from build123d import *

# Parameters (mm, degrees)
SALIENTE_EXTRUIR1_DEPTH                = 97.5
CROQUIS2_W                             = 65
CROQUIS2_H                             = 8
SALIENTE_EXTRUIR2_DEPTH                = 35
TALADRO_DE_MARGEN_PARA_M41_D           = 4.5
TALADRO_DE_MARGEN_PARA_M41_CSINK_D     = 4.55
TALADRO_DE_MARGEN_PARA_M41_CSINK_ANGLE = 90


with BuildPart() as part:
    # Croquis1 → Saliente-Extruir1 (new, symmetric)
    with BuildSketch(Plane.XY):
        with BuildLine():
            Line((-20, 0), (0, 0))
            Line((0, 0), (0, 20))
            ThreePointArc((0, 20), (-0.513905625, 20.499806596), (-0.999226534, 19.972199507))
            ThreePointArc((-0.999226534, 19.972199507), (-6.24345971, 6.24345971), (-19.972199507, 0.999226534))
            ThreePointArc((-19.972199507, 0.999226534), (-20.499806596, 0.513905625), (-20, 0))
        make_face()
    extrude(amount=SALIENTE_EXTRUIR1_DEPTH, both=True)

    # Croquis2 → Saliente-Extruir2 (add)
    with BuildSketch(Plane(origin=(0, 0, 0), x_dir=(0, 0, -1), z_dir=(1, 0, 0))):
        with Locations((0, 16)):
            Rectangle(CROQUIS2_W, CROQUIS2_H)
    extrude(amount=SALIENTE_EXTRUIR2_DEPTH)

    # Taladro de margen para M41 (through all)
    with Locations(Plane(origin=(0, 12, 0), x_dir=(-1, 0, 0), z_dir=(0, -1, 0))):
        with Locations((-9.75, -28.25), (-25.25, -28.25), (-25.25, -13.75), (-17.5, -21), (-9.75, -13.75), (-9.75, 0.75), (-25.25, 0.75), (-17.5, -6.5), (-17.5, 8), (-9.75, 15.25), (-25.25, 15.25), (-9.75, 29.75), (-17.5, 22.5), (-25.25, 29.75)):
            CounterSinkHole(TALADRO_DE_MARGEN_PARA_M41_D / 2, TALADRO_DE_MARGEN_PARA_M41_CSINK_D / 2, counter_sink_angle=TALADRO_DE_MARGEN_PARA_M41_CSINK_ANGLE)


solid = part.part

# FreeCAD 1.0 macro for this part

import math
import FreeCAD as App
import Part
import Sketcher
from FreeCAD import Vector


def add_polygon(sketch, points):
    """Adds a closed chain of lines whose ends are joined by coincident constraints."""
    first, n = sketch.GeometryCount, len(points)
    for a, b in zip(points, points[1:] + points[:1]):
        sketch.addGeometry(Part.LineSegment(App.Vector(*a, 0), App.Vector(*b, 0)), False)
    for i in range(n):
        sketch.addConstraint(Sketcher.Constraint("Coincident", first + i, 2, first + (i + 1) % n, 1))

doc = App.newDocument("Part")
body = doc.addObject("PartDesign::Body", "Body")

# Sketch on XY plane
sketch1 = body.newObject("Sketcher::SketchObject", "Sketch")
sketch1.AttachmentSupport = (doc.getObject("XY_Plane"), [""])
sketch1.MapMode = "FlatFace"
sketch1.addGeometry([
    Part.LineSegment(Vector(-20, 0, 0), Vector(0, 0, 0)),  # 0
    Part.LineSegment(Vector(0, 0, 0), Vector(0, 20, 0)),  # 1
    Part.ArcOfCircle(Part.Circle(Vector(-0.5, 20, 0), Vector(0, 0, 1), 0.5), math.radians(0), math.radians(183)),  # 2
    Part.ArcOfCircle(Part.Circle(Vector(-19, 19, 0), Vector(0, 0, 1), 18), math.radians(-93), math.radians(3)),  # 3
    Part.ArcOfCircle(Part.Circle(Vector(-20, 0.5, 0), Vector(0, 0, 1), 0.5), math.radians(87), math.radians(270)),  # 4
], False)
sketch1.addConstraint([
    Sketcher.Constraint("Coincident", 0, 2, 1, 1),
    Sketcher.Constraint("Tangent", 1, 2, 2, 1),
    Sketcher.Constraint("Tangent", 2, 2, 3, 2),
    Sketcher.Constraint("Tangent", 3, 1, 4, 1),
    Sketcher.Constraint("Tangent", 4, 2, 0, 1),
    Sketcher.Constraint("Horizontal", 0),
    Sketcher.Constraint("Vertical", 1),
    Sketcher.Constraint("Coincident", 0, 2, -1, 1),
    Sketcher.Constraint("Equal", 2, 4),
    Sketcher.Constraint("Equal", 0, 1),
    Sketcher.Constraint("Radius", 3, 18.0),
    Sketcher.Constraint("Radius", 2, 0.5),
    Sketcher.Constraint("DistanceX", 0, 1, 0, 2, 20.0),
])
pad1 = body.newObject("PartDesign::Pad", "Pad")
pad1.Profile = sketch1
pad1.Length = 195
pad1.Midplane = True

# Sketch on YZ plane
sketch2 = body.newObject("Sketcher::SketchObject", "Sketch001")
sketch2.AttachmentSupport = (doc.getObject("YZ_Plane"), [""])
sketch2.MapMode = "FlatFace"
add_polygon(sketch2, [(20, 32), (12, 32), (12, -32), (20, -32)])  # lines 0-3
sketch2.addConstraint([
    Sketcher.Constraint("Horizontal", 0),
    Sketcher.Constraint("Vertical", 1),
    Sketcher.Constraint("Horizontal", 2),
    Sketcher.Constraint("Vertical", 3),
    Sketcher.Constraint("DistanceX", 0, 2, 0, 1, 8.0),
    Sketcher.Constraint("DistanceY", 1, 2, 1, 1, 65.0),
    Sketcher.Constraint("DistanceX", -1, 1, 0, 2, 12.0),
    Sketcher.Constraint("DistanceY", -1, 1, 0, 2, 32.5),
])
pad2 = body.newObject("PartDesign::Pad", "Pad001")
pad2.Profile = sketch2
pad2.Length = 35

# Sketch on XZ plane
sketch3 = body.newObject("Sketcher::SketchObject", "Sketch002")
sketch3.AttachmentSupport = (doc.getObject("XZ_Plane"), [""])
sketch3.MapMode = "FlatFace"
sketch3.AttachmentOffset = App.Placement(Vector(0, 0, -12), App.Rotation())
sketch3.addGeometry([
    Part.Circle(Vector(9.8, 28.2, 0), Vector(0, 0, 1), 2.2),  # 0
    Part.Circle(Vector(25.2, 28.2, 0), Vector(0, 0, 1), 2.2),  # 1
    Part.Circle(Vector(25.2, 13.8, 0), Vector(0, 0, 1), 2.2),  # 2
    Part.Circle(Vector(17.5, 21, 0), Vector(0, 0, 1), 2.2),  # 3
    Part.Circle(Vector(9.8, 13.8, 0), Vector(0, 0, 1), 2.2),  # 4
    Part.Circle(Vector(9.8, -0.8, 0), Vector(0, 0, 1), 2.2),  # 5
    Part.Circle(Vector(25.2, -0.8, 0), Vector(0, 0, 1), 2.2),  # 6
    Part.Circle(Vector(17.5, 6.5, 0), Vector(0, 0, 1), 2.2),  # 7
    Part.Circle(Vector(17.5, -8, 0), Vector(0, 0, 1), 2.2),  # 8
    Part.Circle(Vector(9.8, -15.2, 0), Vector(0, 0, 1), 2.2),  # 9
    Part.Circle(Vector(25.2, -15.2, 0), Vector(0, 0, 1), 2.2),  # 10
    Part.Circle(Vector(9.8, -29.8, 0), Vector(0, 0, 1), 2.2),  # 11
    Part.Circle(Vector(17.5, -22.5, 0), Vector(0, 0, 1), 2.2),  # 12
    Part.Circle(Vector(25.2, -29.8, 0), Vector(0, 0, 1), 2.2),  # 13
], False)
sketch3.addConstraint([
    Sketcher.Constraint("Equal", 0, 1),
    Sketcher.Constraint("Equal", 1, 2),
    Sketcher.Constraint("Equal", 2, 3),
    Sketcher.Constraint("Equal", 3, 4),
    Sketcher.Constraint("Equal", 4, 5),
    Sketcher.Constraint("Equal", 5, 6),
    Sketcher.Constraint("Equal", 6, 7),
    Sketcher.Constraint("Equal", 7, 8),
    Sketcher.Constraint("Equal", 8, 9),
    Sketcher.Constraint("Equal", 9, 10),
    Sketcher.Constraint("Equal", 10, 11),
    Sketcher.Constraint("Equal", 11, 12),
    Sketcher.Constraint("Equal", 12, 13),
    Sketcher.Constraint("Horizontal", 0, 3, 1, 3),
    Sketcher.Constraint("Horizontal", 2, 3, 4, 3),
    Sketcher.Constraint("Horizontal", 5, 3, 6, 3),
    Sketcher.Constraint("Horizontal", 9, 3, 10, 3),
    Sketcher.Constraint("Horizontal", 11, 3, 13, 3),
    Sketcher.Constraint("Vertical", 1, 3, 2, 3),
    Sketcher.Constraint("Vertical", 0, 3, 4, 3),
    Sketcher.Constraint("Vertical", 4, 3, 5, 3),
    Sketcher.Constraint("Vertical", 2, 3, 6, 3),
    Sketcher.Constraint("Vertical", 3, 3, 7, 3),
    Sketcher.Constraint("Vertical", 7, 3, 8, 3),
    Sketcher.Constraint("Vertical", 5, 3, 9, 3),
    Sketcher.Constraint("Vertical", 6, 3, 10, 3),
    Sketcher.Constraint("Vertical", 9, 3, 11, 3),
    Sketcher.Constraint("Vertical", 8, 3, 12, 3),
    Sketcher.Constraint("Vertical", 10, 3, 13, 3),
    Sketcher.Constraint("Diameter", 0, 4.5),
    Sketcher.Constraint("DistanceY", -1, 1, 3, 3, 21.0),
    Sketcher.Constraint("DistanceY", 8, 3, -1, 1, 8.0),
    Sketcher.Constraint("DistanceY", 5, 3, 0, 3, 29.0),
    Sketcher.Constraint("DistanceY", 9, 3, 4, 3, 29.0),
    Sketcher.Constraint("DistanceY", 11, 3, 5, 3, 29.0),
    Sketcher.Constraint("DistanceX", -1, 1, 3, 3, 17.5),
    Sketcher.Constraint("DistanceY", -1, 1, 7, 3, 6.5),
    Sketcher.Constraint("DistanceY", 12, 3, -1, 1, 22.5),
    Sketcher.Constraint("DistanceX", 0, 3, 1, 3, 15.5),
    Sketcher.Constraint("DistanceY", 2, 3, 1, 3, 14.5),
    Sketcher.Constraint("DistanceX", -1, 1, 0, 3, 9.75),
    Sketcher.Constraint("DistanceY", -1, 1, 0, 3, 28.25),
])
doc.recompute()
hole = body.newObject("PartDesign::Hole", "Hole")
hole.Profile = sketch3
hole.ThreadType = "None"
hole.Diameter = 4.5
hole.DepthType = "ThroughAll"
hole.HoleCutType = "Countersink"
hole.HoleCutDiameter = 4.55
hole.HoleCutCountersinkAngle = 90

doc.recompute()
